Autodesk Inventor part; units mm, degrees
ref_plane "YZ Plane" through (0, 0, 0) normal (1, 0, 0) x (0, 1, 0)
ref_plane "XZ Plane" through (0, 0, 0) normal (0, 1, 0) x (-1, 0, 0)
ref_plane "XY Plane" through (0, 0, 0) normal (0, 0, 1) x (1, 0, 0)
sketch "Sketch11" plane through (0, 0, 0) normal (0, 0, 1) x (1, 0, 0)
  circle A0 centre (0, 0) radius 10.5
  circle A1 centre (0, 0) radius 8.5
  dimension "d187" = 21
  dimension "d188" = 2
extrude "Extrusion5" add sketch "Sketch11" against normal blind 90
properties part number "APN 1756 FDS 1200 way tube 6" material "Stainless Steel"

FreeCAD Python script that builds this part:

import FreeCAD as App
import Part
import Sketcher

doc = App.newDocument("Part")
body = doc.addObject("PartDesign::Body", "Body")

sketch1 = body.newObject("Sketcher::SketchObject", "Sketch")
sketch1.AttachmentSupport = (doc.getObject("XY_Plane"), [""])
sketch1.MapMode = "FlatFace"
sketch1.addGeometry([
    Part.Circle(App.Vector(0, 0, 0), App.Vector(0, 0, 1), 10),
    Part.Circle(App.Vector(0, 0, 0), App.Vector(0, 0, 1), 8),
], False)
sketch1.addConstraint([
    Sketcher.Constraint("Coincident", 0, 3, -1, 1),
    Sketcher.Constraint("Coincident", 1, 3, -1, 1),
    Sketcher.Constraint("Diameter", 0, 21.0),
    Sketcher.Constraint("Diameter", 1, 17.0),
])
pad1 = body.newObject("PartDesign::Pad", "Pad")
pad1.Profile = sketch1
pad1.Length = 90
pad1.Reversed = True

doc.recompute()
